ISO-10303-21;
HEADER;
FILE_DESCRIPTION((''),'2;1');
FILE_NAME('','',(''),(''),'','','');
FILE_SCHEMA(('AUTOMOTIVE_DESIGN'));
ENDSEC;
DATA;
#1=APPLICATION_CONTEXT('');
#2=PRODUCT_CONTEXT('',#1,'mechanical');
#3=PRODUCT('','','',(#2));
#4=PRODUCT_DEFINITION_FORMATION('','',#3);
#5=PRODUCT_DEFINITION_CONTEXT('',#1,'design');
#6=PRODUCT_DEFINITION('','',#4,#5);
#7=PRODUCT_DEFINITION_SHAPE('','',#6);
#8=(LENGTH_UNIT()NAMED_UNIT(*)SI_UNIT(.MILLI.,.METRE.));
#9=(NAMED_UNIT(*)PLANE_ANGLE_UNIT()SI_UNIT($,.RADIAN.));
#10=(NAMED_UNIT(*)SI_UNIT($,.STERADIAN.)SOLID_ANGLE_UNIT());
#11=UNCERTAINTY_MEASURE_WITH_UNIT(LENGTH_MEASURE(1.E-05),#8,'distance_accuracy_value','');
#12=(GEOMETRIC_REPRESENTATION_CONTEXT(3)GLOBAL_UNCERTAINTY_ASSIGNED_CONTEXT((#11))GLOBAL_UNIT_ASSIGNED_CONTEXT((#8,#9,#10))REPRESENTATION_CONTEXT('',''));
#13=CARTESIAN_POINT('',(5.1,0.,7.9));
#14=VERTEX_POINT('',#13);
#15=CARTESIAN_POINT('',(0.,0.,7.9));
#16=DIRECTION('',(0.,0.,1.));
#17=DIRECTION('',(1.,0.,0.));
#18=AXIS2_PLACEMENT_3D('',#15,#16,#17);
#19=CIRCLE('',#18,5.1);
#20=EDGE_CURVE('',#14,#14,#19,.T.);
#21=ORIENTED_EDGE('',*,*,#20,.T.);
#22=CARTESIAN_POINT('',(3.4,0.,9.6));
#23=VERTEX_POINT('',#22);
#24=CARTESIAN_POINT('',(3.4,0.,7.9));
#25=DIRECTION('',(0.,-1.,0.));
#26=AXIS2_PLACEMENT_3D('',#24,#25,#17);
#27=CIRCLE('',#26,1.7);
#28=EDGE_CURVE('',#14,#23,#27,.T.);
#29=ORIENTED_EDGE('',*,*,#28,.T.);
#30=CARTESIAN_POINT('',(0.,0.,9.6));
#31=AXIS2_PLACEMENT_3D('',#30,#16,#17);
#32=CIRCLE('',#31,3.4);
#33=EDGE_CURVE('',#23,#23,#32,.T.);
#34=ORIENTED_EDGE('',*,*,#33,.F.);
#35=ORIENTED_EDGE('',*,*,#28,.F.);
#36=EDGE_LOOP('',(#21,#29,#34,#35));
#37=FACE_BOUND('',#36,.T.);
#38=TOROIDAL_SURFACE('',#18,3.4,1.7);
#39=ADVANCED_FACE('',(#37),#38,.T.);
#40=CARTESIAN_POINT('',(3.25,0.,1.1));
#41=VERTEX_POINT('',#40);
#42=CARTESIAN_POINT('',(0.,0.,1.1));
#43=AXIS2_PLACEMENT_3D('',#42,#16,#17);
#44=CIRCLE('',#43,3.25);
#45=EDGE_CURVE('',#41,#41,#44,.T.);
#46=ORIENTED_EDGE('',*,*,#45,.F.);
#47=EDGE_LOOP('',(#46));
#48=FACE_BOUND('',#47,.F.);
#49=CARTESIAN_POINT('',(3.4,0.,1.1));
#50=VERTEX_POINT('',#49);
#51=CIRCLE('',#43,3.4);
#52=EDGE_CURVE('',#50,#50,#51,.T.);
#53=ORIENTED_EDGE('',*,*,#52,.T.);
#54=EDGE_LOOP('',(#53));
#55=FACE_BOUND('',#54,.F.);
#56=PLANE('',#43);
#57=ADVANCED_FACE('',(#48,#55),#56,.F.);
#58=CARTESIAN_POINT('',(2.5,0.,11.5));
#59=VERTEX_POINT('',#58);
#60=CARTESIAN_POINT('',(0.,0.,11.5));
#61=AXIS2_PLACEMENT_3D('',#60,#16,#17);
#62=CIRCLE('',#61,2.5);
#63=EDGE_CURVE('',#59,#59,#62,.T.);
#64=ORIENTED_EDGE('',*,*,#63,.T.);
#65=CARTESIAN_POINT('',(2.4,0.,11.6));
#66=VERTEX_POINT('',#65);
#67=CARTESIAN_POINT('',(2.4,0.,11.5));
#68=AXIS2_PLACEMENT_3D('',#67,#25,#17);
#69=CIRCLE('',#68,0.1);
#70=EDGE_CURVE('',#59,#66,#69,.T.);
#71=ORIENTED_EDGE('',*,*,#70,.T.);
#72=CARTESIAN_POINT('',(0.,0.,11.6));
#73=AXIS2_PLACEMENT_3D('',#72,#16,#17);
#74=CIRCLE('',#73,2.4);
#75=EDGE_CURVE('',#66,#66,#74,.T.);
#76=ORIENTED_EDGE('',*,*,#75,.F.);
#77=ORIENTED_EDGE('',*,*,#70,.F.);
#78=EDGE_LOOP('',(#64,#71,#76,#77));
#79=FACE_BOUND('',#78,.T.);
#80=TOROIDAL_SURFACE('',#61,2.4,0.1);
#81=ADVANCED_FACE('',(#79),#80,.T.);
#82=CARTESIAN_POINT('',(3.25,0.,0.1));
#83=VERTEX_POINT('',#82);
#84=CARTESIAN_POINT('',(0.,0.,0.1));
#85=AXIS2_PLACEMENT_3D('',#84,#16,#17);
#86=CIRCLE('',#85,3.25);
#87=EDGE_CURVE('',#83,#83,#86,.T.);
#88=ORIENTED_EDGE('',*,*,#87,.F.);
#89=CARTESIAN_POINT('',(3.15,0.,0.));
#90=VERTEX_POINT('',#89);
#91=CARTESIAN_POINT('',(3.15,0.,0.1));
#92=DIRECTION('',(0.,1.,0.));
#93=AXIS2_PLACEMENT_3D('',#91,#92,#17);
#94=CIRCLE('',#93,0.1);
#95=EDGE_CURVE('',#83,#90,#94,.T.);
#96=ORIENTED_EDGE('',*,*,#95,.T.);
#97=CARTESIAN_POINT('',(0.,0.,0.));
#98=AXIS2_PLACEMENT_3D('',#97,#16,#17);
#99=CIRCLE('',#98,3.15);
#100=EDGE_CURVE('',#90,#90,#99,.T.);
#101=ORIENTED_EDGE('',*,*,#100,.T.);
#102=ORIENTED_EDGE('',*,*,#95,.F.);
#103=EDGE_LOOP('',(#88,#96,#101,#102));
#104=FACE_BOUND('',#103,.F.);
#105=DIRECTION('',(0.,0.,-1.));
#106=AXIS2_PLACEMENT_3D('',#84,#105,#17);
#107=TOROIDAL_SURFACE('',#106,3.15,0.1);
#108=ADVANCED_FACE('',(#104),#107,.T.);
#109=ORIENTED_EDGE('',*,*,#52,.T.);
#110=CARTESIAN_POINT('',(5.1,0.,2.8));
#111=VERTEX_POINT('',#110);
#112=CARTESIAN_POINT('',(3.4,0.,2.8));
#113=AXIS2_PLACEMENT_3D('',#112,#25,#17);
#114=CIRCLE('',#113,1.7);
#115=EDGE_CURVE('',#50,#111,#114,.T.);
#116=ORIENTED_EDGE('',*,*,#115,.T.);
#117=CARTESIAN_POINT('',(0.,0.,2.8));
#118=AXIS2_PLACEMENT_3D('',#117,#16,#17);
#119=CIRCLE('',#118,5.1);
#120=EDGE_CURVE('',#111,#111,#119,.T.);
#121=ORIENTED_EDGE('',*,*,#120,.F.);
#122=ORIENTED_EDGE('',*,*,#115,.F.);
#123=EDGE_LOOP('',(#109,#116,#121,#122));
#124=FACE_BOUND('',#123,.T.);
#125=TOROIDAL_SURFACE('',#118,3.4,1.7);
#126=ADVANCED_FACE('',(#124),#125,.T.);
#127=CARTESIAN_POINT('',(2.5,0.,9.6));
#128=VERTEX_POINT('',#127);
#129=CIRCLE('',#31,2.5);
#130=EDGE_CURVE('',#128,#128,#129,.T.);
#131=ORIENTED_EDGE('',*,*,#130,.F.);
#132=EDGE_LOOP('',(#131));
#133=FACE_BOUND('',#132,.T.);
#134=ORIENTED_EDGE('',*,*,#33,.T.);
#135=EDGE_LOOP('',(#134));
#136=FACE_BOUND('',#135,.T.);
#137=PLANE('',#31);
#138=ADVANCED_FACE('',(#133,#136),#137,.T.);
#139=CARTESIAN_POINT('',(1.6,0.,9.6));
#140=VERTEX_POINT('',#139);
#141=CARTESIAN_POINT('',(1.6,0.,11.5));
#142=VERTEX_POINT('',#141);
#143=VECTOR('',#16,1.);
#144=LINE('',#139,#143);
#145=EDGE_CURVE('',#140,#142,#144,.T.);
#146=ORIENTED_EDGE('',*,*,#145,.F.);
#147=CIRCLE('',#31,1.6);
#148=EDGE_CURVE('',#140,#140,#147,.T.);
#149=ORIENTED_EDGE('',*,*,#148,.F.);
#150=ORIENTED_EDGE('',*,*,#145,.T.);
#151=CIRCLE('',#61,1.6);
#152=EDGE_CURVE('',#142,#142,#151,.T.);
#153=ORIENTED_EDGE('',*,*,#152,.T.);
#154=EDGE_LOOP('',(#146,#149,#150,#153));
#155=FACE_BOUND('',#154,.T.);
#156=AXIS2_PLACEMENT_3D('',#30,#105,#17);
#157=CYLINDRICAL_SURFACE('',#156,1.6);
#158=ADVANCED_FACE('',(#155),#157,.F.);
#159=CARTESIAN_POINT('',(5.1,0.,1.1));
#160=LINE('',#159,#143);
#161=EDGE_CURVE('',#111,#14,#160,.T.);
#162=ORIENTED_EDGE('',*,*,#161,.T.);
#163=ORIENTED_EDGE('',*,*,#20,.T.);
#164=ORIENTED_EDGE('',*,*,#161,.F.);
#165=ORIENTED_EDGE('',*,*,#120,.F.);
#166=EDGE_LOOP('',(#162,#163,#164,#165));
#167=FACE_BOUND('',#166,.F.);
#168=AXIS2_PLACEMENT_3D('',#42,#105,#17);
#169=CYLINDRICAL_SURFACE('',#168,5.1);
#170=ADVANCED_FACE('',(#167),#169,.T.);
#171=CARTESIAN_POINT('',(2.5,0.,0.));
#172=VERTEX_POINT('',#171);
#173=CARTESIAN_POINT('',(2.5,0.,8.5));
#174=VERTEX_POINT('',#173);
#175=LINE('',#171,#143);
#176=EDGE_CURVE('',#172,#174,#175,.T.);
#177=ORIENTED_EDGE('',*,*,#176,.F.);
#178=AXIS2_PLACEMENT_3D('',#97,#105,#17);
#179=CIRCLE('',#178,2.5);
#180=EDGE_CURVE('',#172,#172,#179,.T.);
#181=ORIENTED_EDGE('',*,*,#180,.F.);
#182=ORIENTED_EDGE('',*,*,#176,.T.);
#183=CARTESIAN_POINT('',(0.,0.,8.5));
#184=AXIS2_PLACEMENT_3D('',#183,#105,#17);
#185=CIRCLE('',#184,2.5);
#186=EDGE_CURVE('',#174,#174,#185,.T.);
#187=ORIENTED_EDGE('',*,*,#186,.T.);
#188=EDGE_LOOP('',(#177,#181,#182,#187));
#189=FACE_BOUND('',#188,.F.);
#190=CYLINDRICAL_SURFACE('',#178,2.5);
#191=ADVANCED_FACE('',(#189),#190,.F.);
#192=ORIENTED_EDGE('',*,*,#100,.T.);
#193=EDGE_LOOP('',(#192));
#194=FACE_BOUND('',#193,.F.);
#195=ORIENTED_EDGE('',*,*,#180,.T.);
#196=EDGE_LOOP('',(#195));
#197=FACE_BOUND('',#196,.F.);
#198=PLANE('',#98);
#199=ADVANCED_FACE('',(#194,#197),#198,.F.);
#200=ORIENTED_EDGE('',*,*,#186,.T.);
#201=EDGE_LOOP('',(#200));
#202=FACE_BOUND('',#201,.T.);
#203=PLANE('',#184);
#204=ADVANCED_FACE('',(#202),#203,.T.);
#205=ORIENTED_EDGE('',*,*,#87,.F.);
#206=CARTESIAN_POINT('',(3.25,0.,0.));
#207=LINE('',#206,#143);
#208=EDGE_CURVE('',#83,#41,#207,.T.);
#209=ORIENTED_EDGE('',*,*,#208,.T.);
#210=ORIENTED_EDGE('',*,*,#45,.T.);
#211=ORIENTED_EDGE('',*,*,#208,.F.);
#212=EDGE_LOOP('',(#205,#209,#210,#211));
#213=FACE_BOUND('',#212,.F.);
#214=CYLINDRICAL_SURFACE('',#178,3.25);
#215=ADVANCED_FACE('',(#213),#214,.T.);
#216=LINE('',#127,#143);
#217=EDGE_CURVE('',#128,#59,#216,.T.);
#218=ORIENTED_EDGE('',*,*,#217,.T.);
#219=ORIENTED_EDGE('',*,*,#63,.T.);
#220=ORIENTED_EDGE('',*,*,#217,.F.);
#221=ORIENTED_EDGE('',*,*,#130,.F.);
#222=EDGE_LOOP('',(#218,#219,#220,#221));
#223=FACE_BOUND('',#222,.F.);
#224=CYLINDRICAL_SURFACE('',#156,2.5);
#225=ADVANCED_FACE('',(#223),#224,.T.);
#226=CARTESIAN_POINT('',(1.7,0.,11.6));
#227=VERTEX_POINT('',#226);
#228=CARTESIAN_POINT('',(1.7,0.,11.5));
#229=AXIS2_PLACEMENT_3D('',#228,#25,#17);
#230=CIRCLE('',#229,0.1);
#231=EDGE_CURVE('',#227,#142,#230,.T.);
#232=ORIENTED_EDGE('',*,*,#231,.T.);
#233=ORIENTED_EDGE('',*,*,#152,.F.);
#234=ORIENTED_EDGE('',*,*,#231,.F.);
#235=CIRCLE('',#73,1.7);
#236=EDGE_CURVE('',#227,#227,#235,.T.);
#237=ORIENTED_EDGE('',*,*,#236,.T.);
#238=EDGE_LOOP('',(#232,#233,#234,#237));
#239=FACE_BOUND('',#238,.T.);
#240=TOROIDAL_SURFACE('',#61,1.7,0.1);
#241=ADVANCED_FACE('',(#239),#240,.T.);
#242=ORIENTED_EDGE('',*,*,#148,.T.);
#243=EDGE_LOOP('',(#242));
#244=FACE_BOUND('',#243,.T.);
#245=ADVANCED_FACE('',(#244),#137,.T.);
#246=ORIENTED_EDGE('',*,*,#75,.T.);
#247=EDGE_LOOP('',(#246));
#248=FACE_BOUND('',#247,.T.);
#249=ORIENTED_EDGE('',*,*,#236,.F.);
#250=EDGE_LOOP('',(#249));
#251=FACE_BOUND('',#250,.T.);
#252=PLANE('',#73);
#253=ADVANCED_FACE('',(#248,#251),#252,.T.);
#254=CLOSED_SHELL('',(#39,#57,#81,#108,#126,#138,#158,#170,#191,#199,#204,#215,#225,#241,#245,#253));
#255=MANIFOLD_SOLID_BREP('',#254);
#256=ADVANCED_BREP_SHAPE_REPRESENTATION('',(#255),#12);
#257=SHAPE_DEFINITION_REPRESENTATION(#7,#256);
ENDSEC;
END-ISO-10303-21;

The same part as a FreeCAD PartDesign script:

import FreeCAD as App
import Part
import Sketcher

V = App.Vector
Q = App.Units.Quantity


def edges_at(feature, points):
    """Names of the edges that pass closest to the given points."""
    edges = feature.Shape.Edges
    near = lambda p: min(range(len(edges)), key=lambda i: edges[i].distToShape(Part.Vertex(*p))[0])
    return sorted({f"Edge{near(p) + 1}" for p in points})

doc = App.newDocument("Part")
body = doc.addObject("PartDesign::Body", "Body")

# Sketch on XY plane
sketch1 = doc.addObject("Sketcher::SketchObject", "Sketch")
body.addObject(sketch1)
sketch1.AttachmentSupport = (doc.XY_Plane, [""])
sketch1.MapMode = "FlatFace"
sketch1.addGeometry(Part.Circle(V(0, 0, 0), V(0, 0, 1), 3.25), False)
sketch1.addConstraint(Sketcher.Constraint("Coincident", 0, 3, -1, 1))
sketch1.addConstraint(Sketcher.Constraint("Diameter", 0, Q("6.5 mm")))
pad1 = doc.addObject("PartDesign::Pad", "Pad")
body.addObject(pad1)
pad1.Profile = sketch1
pad1.Length = 1.1

# Sketch on XY plane
sketch2 = doc.addObject("Sketcher::SketchObject", "Sketch001")
body.addObject(sketch2)
sketch2.AttachmentSupport = (doc.XY_Plane, [""])
sketch2.MapMode = "FlatFace"
sketch2.AttachmentOffset = App.Placement(V(0, 0, 1.1), App.Rotation())
sketch2.addGeometry(Part.Circle(V(0, 0, 0), V(0, 0, 1), 5.1), False)
sketch2.addConstraint(Sketcher.Constraint("Coincident", 0, 3, -1, 1))
sketch2.addConstraint(Sketcher.Constraint("Diameter", 0, Q("10.2 mm")))
pad2 = doc.addObject("PartDesign::Pad", "Pad001")
body.addObject(pad2)
pad2.Profile = sketch2
pad2.Length = 8.5

# Sketch on XY plane
sketch3 = doc.addObject("Sketcher::SketchObject", "Sketch002")
body.addObject(sketch3)
sketch3.AttachmentSupport = (doc.XY_Plane, [""])
sketch3.MapMode = "FlatFace"
sketch3.AttachmentOffset = App.Placement(V(0, 0, 9.6), App.Rotation())
sketch3.addGeometry(Part.Circle(V(0, 0, 0), V(0, 0, 1), 2.5), False)
sketch3.addGeometry(Part.Circle(V(0, 0, 0), V(0, 0, 1), 1.6), False)
sketch3.addConstraint(Sketcher.Constraint("Coincident", 0, 3, -1, 1))
sketch3.addConstraint(Sketcher.Constraint("Coincident", 1, 3, -1, 1))
sketch3.addConstraint(Sketcher.Constraint("Diameter", 0, Q("5 mm")))
sketch3.addConstraint(Sketcher.Constraint("Diameter", 1, Q("3.2 mm")))
pad3 = doc.addObject("PartDesign::Pad", "Pad002")
body.addObject(pad3)
pad3.Profile = sketch3
pad3.Length = 2

# Sketch on XY plane
sketch4 = doc.addObject("Sketcher::SketchObject", "Sketch003")
body.addObject(sketch4)
sketch4.AttachmentSupport = (doc.XY_Plane, [""])
sketch4.MapMode = "FlatFace"
sketch4.addGeometry(Part.Circle(V(0, 0, 0), V(0, 0, 1), 2.5), False)
sketch4.addConstraint(Sketcher.Constraint("Coincident", 0, 3, -1, 1))
sketch4.addConstraint(Sketcher.Constraint("Diameter", 0, Q("5 mm")))
pocket1 = doc.addObject("PartDesign::Pocket", "Pocket")
body.addObject(pocket1)
pocket1.Profile = sketch4
pocket1.Length = 8.5
pocket1.Reversed = True
doc.recompute()

fillet = doc.addObject("PartDesign::Fillet", "Fillet")
body.addObject(fillet)
fillet.Base = (pocket1, edges_at(pocket1, [(-3.25, 0, 0), (-2.5, 0, 11.6), (-1.6, 0, 11.6)]))
fillet.Radius = 0.1
doc.recompute()

fillet2 = doc.addObject("PartDesign::Fillet", "Fillet001")
body.addObject(fillet2)
fillet2.Base = (fillet, edges_at(fillet, [(-5.1, 0, 9.6), (-5.1, 0, 1.1)]))
fillet2.Radius = 1.7

doc.recompute()
